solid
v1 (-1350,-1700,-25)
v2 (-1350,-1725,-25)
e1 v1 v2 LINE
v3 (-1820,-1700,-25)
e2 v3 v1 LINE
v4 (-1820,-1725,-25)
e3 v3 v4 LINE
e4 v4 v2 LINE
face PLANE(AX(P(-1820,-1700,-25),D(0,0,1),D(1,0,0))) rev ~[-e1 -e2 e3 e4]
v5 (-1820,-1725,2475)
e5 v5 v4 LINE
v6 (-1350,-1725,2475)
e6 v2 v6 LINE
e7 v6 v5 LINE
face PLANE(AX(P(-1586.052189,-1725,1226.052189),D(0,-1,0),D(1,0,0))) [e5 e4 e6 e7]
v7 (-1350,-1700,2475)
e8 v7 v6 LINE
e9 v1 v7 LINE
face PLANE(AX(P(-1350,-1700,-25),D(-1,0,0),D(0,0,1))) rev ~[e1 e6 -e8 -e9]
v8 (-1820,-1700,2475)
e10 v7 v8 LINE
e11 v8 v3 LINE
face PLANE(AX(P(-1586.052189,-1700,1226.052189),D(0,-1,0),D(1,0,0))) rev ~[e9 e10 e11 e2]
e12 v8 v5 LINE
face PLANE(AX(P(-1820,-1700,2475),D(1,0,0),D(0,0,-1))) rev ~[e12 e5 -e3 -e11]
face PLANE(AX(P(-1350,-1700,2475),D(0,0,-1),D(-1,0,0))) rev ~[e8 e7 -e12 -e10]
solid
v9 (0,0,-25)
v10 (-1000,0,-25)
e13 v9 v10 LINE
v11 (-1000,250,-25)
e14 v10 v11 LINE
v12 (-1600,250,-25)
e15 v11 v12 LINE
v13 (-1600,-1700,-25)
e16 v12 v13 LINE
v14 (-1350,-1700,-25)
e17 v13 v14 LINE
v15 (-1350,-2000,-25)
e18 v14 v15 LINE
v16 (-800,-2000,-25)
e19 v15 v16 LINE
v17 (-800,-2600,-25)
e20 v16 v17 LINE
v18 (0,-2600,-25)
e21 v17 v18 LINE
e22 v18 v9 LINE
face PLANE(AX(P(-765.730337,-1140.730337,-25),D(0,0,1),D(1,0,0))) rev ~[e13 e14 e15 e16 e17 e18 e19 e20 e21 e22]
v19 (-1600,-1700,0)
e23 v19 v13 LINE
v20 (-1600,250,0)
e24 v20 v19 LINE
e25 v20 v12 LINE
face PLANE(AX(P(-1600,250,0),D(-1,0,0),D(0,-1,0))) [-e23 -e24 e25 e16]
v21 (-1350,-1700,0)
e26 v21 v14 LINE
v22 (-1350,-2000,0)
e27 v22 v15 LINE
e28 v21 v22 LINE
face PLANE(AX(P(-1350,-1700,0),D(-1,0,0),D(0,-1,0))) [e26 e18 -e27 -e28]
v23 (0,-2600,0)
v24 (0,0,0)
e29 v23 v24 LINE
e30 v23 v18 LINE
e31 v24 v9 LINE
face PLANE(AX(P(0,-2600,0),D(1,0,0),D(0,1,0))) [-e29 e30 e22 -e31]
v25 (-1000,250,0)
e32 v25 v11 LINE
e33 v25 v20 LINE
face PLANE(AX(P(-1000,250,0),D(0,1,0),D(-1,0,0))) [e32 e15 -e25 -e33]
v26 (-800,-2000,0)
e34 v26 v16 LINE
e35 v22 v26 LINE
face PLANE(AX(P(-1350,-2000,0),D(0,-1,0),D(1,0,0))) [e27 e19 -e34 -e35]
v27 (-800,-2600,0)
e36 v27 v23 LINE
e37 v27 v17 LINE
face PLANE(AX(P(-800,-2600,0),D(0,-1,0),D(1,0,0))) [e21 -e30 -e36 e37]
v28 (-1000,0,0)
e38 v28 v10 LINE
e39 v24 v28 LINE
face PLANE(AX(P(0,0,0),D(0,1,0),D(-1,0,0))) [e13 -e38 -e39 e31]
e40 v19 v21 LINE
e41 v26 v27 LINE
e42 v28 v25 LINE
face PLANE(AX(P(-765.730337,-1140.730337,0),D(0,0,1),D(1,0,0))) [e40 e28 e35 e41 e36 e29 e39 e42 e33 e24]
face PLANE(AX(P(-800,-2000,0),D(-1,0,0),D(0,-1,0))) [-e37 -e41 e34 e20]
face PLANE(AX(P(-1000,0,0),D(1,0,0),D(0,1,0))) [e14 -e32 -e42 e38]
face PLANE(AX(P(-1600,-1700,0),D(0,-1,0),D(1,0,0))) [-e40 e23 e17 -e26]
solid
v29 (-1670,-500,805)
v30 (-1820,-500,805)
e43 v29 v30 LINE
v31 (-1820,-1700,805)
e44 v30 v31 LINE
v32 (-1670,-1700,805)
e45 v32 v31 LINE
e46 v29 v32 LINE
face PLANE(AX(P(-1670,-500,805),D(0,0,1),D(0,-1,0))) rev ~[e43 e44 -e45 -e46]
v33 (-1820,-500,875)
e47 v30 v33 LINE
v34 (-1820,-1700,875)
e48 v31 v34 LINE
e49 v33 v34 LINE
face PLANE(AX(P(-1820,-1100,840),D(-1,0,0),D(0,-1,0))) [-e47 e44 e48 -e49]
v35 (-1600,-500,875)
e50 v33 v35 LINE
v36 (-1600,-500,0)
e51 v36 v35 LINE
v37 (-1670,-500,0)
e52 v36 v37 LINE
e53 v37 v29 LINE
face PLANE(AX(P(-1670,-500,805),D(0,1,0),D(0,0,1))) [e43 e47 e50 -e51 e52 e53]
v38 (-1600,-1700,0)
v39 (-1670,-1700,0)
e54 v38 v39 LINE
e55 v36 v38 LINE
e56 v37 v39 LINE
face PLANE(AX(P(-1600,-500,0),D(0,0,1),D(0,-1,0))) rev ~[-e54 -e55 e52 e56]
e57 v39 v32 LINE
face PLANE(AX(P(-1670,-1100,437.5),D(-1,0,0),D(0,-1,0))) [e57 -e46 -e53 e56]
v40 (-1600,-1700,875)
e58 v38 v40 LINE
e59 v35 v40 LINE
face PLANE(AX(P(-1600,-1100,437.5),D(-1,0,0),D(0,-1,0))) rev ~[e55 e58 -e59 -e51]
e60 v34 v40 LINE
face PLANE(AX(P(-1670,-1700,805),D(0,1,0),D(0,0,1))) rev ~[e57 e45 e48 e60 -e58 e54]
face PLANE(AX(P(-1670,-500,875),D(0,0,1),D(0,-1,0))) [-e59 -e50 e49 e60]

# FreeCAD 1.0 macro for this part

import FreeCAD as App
import Part
import Sketcher
Q = App.Units.Quantity


def add_polygon(sketch, points):
    """Adds a closed chain of lines whose ends are joined by coincident constraints."""
    first, n = sketch.GeometryCount, len(points)
    for a, b in zip(points, points[1:] + points[:1]):
        sketch.addGeometry(Part.LineSegment(App.Vector(*a, 0), App.Vector(*b, 0)), False)
    for i in range(n):
        sketch.addConstraint(Sketcher.Constraint("Coincident", first + i, 2, first + (i + 1) % n, 1))

doc = App.newDocument("Part")
body = doc.addObject("PartDesign::Body", "Body")

sketch1 = doc.addObject("Sketcher::SketchObject", "Sketch")
body.addObject(sketch1)
sketch1.AttachmentSupport = (doc.XY_Plane, [""])
sketch1.MapMode = "FlatFace"
add_polygon(sketch1, [(0, -2600), (0, 0), (-1000, 0), (-1000, 250), (-1600, 250), (-1600, -1700), (-1350, -1700), (-1350, -2000), (-800, -2000), (-800, -2600)])
sketch1.addConstraint([
    Sketcher.Constraint("Vertical", 0),
    Sketcher.Constraint("Horizontal", 1),
    Sketcher.Constraint("Vertical", 2),
    Sketcher.Constraint("Horizontal", 3),
    Sketcher.Constraint("Vertical", 4),
    Sketcher.Constraint("Horizontal", 5),
    Sketcher.Constraint("Vertical", 6),
    Sketcher.Constraint("Horizontal", 7),
    Sketcher.Constraint("Vertical", 8),
    Sketcher.Constraint("Horizontal", 9),
    Sketcher.Constraint("Coincident", 0, 2, -1, 1),
    Sketcher.Constraint("Equal", 5, 2),
    Sketcher.Constraint("Equal", 3, 8),
    Sketcher.Constraint("DistanceX", 1, 2, 1, 1, Q("1000 mm")),
    Sketcher.Constraint("DistanceX", 3, 2, 3, 1, Q("600 mm")),
    Sketcher.Constraint("DistanceX", 5, 1, 5, 2, Q("250 mm")),
    Sketcher.Constraint("DistanceX", 7, 1, 7, 2, Q("550 mm")),
    Sketcher.Constraint("DistanceY", 0, 1, 0, 2, Q("2600 mm")),
    Sketcher.Constraint("DistanceY", 4, 2, 4, 1, Q("1950 mm")),
])
pad1 = doc.addObject("PartDesign::Pad", "Pad")
body.addObject(pad1)
pad1.Profile = sketch1
pad1.Length = 25
pad1.Reversed = True
body2 = doc.addObject("PartDesign::Body", "Body001")

sketch2 = doc.addObject("Sketcher::SketchObject", "Sketch001")
body2.addObject(sketch2)
sketch2.AttachmentSupport = (doc.getObject("YZ_Plane001"), [""])
sketch2.MapMode = "FlatFace"
sketch2.AttachmentOffset = App.Placement(App.Vector(0, 0, -1600), App.Rotation())
add_polygon(sketch2, [(-500, 875), (-500, 0), (-1700, 0), (-1700, 875)])
sketch2.addConstraint([
    Sketcher.Constraint("Vertical", 0),
    Sketcher.Constraint("Horizontal", 1),
    Sketcher.Constraint("Vertical", 2),
    Sketcher.Constraint("Horizontal", 3),
    Sketcher.Constraint("PointOnObject", 0, 2, -1),
    Sketcher.Constraint("DistanceX", 1, 2, 1, 1, Q("1200 mm")),
    Sketcher.Constraint("DistanceY", 0, 2, 0, 1, Q("875 mm")),
    Sketcher.Constraint("DistanceX", 0, 2, -1, 1, Q("500 mm")),
])
pad2 = doc.addObject("PartDesign::Pad", "Pad001")
body2.addObject(pad2)
pad2.Profile = sketch2
pad2.Length = 70
pad2.Reversed = True

sketch3 = doc.addObject("Sketcher::SketchObject", "Sketch002")
body2.addObject(sketch3)
sketch3.AttachmentSupport = (doc.getObject("YZ_Plane001"), [""])
sketch3.MapMode = "FlatFace"
sketch3.AttachmentOffset = App.Placement(App.Vector(0, 0, -1670), App.Rotation())
add_polygon(sketch3, [(-500, 875), (-500, 805), (-1700, 805), (-1700, 875)])
sketch3.addConstraint([
    Sketcher.Constraint("Vertical", 0),
    Sketcher.Constraint("Horizontal", 1),
    Sketcher.Constraint("Vertical", 2),
    Sketcher.Constraint("Horizontal", 3),
    Sketcher.Constraint("DistanceX", 1, 2, 1, 1, Q("1200 mm")),
    Sketcher.Constraint("DistanceY", 0, 2, 0, 1, Q("70 mm")),
    Sketcher.Constraint("DistanceX", 0, 2, -1, 1, Q("500 mm")),
    Sketcher.Constraint("DistanceY", -1, 1, 0, 2, Q("805 mm")),
])
pad3 = doc.addObject("PartDesign::Pad", "Pad002")
body2.addObject(pad3)
pad3.Profile = sketch3
pad3.Length = 150
pad3.Reversed = True
body3 = doc.addObject("PartDesign::Body", "Body002")

sketch4 = doc.addObject("Sketcher::SketchObject", "Sketch003")
body3.addObject(sketch4)
sketch4.AttachmentSupport = (doc.getObject("XZ_Plane002"), [""])
sketch4.MapMode = "FlatFace"
sketch4.AttachmentOffset = App.Placement(App.Vector(0, 0, 1700), App.Rotation())
add_polygon(sketch4, [(-1820, -25), (-1350, -25), (-1350, 2475), (-1820, 2475)])
sketch4.addConstraint([
    Sketcher.Constraint("Horizontal", 0),
    Sketcher.Constraint("Vertical", 1),
    Sketcher.Constraint("Horizontal", 2),
    Sketcher.Constraint("Vertical", 3),
    Sketcher.Constraint("DistanceX", 0, 1, 0, 2, Q("470 mm")),
    Sketcher.Constraint("DistanceY", 1, 1, 1, 2, Q("2500 mm")),
    Sketcher.Constraint("DistanceX", 0, 2, -1, 1, Q("1350 mm")),
    Sketcher.Constraint("DistanceY", 0, 2, -1, 1, Q("25 mm")),
])
pad4 = doc.addObject("PartDesign::Pad", "Pad003")
body3.addObject(pad4)
pad4.Profile = sketch4
pad4.Length = 25

doc.recompute()
